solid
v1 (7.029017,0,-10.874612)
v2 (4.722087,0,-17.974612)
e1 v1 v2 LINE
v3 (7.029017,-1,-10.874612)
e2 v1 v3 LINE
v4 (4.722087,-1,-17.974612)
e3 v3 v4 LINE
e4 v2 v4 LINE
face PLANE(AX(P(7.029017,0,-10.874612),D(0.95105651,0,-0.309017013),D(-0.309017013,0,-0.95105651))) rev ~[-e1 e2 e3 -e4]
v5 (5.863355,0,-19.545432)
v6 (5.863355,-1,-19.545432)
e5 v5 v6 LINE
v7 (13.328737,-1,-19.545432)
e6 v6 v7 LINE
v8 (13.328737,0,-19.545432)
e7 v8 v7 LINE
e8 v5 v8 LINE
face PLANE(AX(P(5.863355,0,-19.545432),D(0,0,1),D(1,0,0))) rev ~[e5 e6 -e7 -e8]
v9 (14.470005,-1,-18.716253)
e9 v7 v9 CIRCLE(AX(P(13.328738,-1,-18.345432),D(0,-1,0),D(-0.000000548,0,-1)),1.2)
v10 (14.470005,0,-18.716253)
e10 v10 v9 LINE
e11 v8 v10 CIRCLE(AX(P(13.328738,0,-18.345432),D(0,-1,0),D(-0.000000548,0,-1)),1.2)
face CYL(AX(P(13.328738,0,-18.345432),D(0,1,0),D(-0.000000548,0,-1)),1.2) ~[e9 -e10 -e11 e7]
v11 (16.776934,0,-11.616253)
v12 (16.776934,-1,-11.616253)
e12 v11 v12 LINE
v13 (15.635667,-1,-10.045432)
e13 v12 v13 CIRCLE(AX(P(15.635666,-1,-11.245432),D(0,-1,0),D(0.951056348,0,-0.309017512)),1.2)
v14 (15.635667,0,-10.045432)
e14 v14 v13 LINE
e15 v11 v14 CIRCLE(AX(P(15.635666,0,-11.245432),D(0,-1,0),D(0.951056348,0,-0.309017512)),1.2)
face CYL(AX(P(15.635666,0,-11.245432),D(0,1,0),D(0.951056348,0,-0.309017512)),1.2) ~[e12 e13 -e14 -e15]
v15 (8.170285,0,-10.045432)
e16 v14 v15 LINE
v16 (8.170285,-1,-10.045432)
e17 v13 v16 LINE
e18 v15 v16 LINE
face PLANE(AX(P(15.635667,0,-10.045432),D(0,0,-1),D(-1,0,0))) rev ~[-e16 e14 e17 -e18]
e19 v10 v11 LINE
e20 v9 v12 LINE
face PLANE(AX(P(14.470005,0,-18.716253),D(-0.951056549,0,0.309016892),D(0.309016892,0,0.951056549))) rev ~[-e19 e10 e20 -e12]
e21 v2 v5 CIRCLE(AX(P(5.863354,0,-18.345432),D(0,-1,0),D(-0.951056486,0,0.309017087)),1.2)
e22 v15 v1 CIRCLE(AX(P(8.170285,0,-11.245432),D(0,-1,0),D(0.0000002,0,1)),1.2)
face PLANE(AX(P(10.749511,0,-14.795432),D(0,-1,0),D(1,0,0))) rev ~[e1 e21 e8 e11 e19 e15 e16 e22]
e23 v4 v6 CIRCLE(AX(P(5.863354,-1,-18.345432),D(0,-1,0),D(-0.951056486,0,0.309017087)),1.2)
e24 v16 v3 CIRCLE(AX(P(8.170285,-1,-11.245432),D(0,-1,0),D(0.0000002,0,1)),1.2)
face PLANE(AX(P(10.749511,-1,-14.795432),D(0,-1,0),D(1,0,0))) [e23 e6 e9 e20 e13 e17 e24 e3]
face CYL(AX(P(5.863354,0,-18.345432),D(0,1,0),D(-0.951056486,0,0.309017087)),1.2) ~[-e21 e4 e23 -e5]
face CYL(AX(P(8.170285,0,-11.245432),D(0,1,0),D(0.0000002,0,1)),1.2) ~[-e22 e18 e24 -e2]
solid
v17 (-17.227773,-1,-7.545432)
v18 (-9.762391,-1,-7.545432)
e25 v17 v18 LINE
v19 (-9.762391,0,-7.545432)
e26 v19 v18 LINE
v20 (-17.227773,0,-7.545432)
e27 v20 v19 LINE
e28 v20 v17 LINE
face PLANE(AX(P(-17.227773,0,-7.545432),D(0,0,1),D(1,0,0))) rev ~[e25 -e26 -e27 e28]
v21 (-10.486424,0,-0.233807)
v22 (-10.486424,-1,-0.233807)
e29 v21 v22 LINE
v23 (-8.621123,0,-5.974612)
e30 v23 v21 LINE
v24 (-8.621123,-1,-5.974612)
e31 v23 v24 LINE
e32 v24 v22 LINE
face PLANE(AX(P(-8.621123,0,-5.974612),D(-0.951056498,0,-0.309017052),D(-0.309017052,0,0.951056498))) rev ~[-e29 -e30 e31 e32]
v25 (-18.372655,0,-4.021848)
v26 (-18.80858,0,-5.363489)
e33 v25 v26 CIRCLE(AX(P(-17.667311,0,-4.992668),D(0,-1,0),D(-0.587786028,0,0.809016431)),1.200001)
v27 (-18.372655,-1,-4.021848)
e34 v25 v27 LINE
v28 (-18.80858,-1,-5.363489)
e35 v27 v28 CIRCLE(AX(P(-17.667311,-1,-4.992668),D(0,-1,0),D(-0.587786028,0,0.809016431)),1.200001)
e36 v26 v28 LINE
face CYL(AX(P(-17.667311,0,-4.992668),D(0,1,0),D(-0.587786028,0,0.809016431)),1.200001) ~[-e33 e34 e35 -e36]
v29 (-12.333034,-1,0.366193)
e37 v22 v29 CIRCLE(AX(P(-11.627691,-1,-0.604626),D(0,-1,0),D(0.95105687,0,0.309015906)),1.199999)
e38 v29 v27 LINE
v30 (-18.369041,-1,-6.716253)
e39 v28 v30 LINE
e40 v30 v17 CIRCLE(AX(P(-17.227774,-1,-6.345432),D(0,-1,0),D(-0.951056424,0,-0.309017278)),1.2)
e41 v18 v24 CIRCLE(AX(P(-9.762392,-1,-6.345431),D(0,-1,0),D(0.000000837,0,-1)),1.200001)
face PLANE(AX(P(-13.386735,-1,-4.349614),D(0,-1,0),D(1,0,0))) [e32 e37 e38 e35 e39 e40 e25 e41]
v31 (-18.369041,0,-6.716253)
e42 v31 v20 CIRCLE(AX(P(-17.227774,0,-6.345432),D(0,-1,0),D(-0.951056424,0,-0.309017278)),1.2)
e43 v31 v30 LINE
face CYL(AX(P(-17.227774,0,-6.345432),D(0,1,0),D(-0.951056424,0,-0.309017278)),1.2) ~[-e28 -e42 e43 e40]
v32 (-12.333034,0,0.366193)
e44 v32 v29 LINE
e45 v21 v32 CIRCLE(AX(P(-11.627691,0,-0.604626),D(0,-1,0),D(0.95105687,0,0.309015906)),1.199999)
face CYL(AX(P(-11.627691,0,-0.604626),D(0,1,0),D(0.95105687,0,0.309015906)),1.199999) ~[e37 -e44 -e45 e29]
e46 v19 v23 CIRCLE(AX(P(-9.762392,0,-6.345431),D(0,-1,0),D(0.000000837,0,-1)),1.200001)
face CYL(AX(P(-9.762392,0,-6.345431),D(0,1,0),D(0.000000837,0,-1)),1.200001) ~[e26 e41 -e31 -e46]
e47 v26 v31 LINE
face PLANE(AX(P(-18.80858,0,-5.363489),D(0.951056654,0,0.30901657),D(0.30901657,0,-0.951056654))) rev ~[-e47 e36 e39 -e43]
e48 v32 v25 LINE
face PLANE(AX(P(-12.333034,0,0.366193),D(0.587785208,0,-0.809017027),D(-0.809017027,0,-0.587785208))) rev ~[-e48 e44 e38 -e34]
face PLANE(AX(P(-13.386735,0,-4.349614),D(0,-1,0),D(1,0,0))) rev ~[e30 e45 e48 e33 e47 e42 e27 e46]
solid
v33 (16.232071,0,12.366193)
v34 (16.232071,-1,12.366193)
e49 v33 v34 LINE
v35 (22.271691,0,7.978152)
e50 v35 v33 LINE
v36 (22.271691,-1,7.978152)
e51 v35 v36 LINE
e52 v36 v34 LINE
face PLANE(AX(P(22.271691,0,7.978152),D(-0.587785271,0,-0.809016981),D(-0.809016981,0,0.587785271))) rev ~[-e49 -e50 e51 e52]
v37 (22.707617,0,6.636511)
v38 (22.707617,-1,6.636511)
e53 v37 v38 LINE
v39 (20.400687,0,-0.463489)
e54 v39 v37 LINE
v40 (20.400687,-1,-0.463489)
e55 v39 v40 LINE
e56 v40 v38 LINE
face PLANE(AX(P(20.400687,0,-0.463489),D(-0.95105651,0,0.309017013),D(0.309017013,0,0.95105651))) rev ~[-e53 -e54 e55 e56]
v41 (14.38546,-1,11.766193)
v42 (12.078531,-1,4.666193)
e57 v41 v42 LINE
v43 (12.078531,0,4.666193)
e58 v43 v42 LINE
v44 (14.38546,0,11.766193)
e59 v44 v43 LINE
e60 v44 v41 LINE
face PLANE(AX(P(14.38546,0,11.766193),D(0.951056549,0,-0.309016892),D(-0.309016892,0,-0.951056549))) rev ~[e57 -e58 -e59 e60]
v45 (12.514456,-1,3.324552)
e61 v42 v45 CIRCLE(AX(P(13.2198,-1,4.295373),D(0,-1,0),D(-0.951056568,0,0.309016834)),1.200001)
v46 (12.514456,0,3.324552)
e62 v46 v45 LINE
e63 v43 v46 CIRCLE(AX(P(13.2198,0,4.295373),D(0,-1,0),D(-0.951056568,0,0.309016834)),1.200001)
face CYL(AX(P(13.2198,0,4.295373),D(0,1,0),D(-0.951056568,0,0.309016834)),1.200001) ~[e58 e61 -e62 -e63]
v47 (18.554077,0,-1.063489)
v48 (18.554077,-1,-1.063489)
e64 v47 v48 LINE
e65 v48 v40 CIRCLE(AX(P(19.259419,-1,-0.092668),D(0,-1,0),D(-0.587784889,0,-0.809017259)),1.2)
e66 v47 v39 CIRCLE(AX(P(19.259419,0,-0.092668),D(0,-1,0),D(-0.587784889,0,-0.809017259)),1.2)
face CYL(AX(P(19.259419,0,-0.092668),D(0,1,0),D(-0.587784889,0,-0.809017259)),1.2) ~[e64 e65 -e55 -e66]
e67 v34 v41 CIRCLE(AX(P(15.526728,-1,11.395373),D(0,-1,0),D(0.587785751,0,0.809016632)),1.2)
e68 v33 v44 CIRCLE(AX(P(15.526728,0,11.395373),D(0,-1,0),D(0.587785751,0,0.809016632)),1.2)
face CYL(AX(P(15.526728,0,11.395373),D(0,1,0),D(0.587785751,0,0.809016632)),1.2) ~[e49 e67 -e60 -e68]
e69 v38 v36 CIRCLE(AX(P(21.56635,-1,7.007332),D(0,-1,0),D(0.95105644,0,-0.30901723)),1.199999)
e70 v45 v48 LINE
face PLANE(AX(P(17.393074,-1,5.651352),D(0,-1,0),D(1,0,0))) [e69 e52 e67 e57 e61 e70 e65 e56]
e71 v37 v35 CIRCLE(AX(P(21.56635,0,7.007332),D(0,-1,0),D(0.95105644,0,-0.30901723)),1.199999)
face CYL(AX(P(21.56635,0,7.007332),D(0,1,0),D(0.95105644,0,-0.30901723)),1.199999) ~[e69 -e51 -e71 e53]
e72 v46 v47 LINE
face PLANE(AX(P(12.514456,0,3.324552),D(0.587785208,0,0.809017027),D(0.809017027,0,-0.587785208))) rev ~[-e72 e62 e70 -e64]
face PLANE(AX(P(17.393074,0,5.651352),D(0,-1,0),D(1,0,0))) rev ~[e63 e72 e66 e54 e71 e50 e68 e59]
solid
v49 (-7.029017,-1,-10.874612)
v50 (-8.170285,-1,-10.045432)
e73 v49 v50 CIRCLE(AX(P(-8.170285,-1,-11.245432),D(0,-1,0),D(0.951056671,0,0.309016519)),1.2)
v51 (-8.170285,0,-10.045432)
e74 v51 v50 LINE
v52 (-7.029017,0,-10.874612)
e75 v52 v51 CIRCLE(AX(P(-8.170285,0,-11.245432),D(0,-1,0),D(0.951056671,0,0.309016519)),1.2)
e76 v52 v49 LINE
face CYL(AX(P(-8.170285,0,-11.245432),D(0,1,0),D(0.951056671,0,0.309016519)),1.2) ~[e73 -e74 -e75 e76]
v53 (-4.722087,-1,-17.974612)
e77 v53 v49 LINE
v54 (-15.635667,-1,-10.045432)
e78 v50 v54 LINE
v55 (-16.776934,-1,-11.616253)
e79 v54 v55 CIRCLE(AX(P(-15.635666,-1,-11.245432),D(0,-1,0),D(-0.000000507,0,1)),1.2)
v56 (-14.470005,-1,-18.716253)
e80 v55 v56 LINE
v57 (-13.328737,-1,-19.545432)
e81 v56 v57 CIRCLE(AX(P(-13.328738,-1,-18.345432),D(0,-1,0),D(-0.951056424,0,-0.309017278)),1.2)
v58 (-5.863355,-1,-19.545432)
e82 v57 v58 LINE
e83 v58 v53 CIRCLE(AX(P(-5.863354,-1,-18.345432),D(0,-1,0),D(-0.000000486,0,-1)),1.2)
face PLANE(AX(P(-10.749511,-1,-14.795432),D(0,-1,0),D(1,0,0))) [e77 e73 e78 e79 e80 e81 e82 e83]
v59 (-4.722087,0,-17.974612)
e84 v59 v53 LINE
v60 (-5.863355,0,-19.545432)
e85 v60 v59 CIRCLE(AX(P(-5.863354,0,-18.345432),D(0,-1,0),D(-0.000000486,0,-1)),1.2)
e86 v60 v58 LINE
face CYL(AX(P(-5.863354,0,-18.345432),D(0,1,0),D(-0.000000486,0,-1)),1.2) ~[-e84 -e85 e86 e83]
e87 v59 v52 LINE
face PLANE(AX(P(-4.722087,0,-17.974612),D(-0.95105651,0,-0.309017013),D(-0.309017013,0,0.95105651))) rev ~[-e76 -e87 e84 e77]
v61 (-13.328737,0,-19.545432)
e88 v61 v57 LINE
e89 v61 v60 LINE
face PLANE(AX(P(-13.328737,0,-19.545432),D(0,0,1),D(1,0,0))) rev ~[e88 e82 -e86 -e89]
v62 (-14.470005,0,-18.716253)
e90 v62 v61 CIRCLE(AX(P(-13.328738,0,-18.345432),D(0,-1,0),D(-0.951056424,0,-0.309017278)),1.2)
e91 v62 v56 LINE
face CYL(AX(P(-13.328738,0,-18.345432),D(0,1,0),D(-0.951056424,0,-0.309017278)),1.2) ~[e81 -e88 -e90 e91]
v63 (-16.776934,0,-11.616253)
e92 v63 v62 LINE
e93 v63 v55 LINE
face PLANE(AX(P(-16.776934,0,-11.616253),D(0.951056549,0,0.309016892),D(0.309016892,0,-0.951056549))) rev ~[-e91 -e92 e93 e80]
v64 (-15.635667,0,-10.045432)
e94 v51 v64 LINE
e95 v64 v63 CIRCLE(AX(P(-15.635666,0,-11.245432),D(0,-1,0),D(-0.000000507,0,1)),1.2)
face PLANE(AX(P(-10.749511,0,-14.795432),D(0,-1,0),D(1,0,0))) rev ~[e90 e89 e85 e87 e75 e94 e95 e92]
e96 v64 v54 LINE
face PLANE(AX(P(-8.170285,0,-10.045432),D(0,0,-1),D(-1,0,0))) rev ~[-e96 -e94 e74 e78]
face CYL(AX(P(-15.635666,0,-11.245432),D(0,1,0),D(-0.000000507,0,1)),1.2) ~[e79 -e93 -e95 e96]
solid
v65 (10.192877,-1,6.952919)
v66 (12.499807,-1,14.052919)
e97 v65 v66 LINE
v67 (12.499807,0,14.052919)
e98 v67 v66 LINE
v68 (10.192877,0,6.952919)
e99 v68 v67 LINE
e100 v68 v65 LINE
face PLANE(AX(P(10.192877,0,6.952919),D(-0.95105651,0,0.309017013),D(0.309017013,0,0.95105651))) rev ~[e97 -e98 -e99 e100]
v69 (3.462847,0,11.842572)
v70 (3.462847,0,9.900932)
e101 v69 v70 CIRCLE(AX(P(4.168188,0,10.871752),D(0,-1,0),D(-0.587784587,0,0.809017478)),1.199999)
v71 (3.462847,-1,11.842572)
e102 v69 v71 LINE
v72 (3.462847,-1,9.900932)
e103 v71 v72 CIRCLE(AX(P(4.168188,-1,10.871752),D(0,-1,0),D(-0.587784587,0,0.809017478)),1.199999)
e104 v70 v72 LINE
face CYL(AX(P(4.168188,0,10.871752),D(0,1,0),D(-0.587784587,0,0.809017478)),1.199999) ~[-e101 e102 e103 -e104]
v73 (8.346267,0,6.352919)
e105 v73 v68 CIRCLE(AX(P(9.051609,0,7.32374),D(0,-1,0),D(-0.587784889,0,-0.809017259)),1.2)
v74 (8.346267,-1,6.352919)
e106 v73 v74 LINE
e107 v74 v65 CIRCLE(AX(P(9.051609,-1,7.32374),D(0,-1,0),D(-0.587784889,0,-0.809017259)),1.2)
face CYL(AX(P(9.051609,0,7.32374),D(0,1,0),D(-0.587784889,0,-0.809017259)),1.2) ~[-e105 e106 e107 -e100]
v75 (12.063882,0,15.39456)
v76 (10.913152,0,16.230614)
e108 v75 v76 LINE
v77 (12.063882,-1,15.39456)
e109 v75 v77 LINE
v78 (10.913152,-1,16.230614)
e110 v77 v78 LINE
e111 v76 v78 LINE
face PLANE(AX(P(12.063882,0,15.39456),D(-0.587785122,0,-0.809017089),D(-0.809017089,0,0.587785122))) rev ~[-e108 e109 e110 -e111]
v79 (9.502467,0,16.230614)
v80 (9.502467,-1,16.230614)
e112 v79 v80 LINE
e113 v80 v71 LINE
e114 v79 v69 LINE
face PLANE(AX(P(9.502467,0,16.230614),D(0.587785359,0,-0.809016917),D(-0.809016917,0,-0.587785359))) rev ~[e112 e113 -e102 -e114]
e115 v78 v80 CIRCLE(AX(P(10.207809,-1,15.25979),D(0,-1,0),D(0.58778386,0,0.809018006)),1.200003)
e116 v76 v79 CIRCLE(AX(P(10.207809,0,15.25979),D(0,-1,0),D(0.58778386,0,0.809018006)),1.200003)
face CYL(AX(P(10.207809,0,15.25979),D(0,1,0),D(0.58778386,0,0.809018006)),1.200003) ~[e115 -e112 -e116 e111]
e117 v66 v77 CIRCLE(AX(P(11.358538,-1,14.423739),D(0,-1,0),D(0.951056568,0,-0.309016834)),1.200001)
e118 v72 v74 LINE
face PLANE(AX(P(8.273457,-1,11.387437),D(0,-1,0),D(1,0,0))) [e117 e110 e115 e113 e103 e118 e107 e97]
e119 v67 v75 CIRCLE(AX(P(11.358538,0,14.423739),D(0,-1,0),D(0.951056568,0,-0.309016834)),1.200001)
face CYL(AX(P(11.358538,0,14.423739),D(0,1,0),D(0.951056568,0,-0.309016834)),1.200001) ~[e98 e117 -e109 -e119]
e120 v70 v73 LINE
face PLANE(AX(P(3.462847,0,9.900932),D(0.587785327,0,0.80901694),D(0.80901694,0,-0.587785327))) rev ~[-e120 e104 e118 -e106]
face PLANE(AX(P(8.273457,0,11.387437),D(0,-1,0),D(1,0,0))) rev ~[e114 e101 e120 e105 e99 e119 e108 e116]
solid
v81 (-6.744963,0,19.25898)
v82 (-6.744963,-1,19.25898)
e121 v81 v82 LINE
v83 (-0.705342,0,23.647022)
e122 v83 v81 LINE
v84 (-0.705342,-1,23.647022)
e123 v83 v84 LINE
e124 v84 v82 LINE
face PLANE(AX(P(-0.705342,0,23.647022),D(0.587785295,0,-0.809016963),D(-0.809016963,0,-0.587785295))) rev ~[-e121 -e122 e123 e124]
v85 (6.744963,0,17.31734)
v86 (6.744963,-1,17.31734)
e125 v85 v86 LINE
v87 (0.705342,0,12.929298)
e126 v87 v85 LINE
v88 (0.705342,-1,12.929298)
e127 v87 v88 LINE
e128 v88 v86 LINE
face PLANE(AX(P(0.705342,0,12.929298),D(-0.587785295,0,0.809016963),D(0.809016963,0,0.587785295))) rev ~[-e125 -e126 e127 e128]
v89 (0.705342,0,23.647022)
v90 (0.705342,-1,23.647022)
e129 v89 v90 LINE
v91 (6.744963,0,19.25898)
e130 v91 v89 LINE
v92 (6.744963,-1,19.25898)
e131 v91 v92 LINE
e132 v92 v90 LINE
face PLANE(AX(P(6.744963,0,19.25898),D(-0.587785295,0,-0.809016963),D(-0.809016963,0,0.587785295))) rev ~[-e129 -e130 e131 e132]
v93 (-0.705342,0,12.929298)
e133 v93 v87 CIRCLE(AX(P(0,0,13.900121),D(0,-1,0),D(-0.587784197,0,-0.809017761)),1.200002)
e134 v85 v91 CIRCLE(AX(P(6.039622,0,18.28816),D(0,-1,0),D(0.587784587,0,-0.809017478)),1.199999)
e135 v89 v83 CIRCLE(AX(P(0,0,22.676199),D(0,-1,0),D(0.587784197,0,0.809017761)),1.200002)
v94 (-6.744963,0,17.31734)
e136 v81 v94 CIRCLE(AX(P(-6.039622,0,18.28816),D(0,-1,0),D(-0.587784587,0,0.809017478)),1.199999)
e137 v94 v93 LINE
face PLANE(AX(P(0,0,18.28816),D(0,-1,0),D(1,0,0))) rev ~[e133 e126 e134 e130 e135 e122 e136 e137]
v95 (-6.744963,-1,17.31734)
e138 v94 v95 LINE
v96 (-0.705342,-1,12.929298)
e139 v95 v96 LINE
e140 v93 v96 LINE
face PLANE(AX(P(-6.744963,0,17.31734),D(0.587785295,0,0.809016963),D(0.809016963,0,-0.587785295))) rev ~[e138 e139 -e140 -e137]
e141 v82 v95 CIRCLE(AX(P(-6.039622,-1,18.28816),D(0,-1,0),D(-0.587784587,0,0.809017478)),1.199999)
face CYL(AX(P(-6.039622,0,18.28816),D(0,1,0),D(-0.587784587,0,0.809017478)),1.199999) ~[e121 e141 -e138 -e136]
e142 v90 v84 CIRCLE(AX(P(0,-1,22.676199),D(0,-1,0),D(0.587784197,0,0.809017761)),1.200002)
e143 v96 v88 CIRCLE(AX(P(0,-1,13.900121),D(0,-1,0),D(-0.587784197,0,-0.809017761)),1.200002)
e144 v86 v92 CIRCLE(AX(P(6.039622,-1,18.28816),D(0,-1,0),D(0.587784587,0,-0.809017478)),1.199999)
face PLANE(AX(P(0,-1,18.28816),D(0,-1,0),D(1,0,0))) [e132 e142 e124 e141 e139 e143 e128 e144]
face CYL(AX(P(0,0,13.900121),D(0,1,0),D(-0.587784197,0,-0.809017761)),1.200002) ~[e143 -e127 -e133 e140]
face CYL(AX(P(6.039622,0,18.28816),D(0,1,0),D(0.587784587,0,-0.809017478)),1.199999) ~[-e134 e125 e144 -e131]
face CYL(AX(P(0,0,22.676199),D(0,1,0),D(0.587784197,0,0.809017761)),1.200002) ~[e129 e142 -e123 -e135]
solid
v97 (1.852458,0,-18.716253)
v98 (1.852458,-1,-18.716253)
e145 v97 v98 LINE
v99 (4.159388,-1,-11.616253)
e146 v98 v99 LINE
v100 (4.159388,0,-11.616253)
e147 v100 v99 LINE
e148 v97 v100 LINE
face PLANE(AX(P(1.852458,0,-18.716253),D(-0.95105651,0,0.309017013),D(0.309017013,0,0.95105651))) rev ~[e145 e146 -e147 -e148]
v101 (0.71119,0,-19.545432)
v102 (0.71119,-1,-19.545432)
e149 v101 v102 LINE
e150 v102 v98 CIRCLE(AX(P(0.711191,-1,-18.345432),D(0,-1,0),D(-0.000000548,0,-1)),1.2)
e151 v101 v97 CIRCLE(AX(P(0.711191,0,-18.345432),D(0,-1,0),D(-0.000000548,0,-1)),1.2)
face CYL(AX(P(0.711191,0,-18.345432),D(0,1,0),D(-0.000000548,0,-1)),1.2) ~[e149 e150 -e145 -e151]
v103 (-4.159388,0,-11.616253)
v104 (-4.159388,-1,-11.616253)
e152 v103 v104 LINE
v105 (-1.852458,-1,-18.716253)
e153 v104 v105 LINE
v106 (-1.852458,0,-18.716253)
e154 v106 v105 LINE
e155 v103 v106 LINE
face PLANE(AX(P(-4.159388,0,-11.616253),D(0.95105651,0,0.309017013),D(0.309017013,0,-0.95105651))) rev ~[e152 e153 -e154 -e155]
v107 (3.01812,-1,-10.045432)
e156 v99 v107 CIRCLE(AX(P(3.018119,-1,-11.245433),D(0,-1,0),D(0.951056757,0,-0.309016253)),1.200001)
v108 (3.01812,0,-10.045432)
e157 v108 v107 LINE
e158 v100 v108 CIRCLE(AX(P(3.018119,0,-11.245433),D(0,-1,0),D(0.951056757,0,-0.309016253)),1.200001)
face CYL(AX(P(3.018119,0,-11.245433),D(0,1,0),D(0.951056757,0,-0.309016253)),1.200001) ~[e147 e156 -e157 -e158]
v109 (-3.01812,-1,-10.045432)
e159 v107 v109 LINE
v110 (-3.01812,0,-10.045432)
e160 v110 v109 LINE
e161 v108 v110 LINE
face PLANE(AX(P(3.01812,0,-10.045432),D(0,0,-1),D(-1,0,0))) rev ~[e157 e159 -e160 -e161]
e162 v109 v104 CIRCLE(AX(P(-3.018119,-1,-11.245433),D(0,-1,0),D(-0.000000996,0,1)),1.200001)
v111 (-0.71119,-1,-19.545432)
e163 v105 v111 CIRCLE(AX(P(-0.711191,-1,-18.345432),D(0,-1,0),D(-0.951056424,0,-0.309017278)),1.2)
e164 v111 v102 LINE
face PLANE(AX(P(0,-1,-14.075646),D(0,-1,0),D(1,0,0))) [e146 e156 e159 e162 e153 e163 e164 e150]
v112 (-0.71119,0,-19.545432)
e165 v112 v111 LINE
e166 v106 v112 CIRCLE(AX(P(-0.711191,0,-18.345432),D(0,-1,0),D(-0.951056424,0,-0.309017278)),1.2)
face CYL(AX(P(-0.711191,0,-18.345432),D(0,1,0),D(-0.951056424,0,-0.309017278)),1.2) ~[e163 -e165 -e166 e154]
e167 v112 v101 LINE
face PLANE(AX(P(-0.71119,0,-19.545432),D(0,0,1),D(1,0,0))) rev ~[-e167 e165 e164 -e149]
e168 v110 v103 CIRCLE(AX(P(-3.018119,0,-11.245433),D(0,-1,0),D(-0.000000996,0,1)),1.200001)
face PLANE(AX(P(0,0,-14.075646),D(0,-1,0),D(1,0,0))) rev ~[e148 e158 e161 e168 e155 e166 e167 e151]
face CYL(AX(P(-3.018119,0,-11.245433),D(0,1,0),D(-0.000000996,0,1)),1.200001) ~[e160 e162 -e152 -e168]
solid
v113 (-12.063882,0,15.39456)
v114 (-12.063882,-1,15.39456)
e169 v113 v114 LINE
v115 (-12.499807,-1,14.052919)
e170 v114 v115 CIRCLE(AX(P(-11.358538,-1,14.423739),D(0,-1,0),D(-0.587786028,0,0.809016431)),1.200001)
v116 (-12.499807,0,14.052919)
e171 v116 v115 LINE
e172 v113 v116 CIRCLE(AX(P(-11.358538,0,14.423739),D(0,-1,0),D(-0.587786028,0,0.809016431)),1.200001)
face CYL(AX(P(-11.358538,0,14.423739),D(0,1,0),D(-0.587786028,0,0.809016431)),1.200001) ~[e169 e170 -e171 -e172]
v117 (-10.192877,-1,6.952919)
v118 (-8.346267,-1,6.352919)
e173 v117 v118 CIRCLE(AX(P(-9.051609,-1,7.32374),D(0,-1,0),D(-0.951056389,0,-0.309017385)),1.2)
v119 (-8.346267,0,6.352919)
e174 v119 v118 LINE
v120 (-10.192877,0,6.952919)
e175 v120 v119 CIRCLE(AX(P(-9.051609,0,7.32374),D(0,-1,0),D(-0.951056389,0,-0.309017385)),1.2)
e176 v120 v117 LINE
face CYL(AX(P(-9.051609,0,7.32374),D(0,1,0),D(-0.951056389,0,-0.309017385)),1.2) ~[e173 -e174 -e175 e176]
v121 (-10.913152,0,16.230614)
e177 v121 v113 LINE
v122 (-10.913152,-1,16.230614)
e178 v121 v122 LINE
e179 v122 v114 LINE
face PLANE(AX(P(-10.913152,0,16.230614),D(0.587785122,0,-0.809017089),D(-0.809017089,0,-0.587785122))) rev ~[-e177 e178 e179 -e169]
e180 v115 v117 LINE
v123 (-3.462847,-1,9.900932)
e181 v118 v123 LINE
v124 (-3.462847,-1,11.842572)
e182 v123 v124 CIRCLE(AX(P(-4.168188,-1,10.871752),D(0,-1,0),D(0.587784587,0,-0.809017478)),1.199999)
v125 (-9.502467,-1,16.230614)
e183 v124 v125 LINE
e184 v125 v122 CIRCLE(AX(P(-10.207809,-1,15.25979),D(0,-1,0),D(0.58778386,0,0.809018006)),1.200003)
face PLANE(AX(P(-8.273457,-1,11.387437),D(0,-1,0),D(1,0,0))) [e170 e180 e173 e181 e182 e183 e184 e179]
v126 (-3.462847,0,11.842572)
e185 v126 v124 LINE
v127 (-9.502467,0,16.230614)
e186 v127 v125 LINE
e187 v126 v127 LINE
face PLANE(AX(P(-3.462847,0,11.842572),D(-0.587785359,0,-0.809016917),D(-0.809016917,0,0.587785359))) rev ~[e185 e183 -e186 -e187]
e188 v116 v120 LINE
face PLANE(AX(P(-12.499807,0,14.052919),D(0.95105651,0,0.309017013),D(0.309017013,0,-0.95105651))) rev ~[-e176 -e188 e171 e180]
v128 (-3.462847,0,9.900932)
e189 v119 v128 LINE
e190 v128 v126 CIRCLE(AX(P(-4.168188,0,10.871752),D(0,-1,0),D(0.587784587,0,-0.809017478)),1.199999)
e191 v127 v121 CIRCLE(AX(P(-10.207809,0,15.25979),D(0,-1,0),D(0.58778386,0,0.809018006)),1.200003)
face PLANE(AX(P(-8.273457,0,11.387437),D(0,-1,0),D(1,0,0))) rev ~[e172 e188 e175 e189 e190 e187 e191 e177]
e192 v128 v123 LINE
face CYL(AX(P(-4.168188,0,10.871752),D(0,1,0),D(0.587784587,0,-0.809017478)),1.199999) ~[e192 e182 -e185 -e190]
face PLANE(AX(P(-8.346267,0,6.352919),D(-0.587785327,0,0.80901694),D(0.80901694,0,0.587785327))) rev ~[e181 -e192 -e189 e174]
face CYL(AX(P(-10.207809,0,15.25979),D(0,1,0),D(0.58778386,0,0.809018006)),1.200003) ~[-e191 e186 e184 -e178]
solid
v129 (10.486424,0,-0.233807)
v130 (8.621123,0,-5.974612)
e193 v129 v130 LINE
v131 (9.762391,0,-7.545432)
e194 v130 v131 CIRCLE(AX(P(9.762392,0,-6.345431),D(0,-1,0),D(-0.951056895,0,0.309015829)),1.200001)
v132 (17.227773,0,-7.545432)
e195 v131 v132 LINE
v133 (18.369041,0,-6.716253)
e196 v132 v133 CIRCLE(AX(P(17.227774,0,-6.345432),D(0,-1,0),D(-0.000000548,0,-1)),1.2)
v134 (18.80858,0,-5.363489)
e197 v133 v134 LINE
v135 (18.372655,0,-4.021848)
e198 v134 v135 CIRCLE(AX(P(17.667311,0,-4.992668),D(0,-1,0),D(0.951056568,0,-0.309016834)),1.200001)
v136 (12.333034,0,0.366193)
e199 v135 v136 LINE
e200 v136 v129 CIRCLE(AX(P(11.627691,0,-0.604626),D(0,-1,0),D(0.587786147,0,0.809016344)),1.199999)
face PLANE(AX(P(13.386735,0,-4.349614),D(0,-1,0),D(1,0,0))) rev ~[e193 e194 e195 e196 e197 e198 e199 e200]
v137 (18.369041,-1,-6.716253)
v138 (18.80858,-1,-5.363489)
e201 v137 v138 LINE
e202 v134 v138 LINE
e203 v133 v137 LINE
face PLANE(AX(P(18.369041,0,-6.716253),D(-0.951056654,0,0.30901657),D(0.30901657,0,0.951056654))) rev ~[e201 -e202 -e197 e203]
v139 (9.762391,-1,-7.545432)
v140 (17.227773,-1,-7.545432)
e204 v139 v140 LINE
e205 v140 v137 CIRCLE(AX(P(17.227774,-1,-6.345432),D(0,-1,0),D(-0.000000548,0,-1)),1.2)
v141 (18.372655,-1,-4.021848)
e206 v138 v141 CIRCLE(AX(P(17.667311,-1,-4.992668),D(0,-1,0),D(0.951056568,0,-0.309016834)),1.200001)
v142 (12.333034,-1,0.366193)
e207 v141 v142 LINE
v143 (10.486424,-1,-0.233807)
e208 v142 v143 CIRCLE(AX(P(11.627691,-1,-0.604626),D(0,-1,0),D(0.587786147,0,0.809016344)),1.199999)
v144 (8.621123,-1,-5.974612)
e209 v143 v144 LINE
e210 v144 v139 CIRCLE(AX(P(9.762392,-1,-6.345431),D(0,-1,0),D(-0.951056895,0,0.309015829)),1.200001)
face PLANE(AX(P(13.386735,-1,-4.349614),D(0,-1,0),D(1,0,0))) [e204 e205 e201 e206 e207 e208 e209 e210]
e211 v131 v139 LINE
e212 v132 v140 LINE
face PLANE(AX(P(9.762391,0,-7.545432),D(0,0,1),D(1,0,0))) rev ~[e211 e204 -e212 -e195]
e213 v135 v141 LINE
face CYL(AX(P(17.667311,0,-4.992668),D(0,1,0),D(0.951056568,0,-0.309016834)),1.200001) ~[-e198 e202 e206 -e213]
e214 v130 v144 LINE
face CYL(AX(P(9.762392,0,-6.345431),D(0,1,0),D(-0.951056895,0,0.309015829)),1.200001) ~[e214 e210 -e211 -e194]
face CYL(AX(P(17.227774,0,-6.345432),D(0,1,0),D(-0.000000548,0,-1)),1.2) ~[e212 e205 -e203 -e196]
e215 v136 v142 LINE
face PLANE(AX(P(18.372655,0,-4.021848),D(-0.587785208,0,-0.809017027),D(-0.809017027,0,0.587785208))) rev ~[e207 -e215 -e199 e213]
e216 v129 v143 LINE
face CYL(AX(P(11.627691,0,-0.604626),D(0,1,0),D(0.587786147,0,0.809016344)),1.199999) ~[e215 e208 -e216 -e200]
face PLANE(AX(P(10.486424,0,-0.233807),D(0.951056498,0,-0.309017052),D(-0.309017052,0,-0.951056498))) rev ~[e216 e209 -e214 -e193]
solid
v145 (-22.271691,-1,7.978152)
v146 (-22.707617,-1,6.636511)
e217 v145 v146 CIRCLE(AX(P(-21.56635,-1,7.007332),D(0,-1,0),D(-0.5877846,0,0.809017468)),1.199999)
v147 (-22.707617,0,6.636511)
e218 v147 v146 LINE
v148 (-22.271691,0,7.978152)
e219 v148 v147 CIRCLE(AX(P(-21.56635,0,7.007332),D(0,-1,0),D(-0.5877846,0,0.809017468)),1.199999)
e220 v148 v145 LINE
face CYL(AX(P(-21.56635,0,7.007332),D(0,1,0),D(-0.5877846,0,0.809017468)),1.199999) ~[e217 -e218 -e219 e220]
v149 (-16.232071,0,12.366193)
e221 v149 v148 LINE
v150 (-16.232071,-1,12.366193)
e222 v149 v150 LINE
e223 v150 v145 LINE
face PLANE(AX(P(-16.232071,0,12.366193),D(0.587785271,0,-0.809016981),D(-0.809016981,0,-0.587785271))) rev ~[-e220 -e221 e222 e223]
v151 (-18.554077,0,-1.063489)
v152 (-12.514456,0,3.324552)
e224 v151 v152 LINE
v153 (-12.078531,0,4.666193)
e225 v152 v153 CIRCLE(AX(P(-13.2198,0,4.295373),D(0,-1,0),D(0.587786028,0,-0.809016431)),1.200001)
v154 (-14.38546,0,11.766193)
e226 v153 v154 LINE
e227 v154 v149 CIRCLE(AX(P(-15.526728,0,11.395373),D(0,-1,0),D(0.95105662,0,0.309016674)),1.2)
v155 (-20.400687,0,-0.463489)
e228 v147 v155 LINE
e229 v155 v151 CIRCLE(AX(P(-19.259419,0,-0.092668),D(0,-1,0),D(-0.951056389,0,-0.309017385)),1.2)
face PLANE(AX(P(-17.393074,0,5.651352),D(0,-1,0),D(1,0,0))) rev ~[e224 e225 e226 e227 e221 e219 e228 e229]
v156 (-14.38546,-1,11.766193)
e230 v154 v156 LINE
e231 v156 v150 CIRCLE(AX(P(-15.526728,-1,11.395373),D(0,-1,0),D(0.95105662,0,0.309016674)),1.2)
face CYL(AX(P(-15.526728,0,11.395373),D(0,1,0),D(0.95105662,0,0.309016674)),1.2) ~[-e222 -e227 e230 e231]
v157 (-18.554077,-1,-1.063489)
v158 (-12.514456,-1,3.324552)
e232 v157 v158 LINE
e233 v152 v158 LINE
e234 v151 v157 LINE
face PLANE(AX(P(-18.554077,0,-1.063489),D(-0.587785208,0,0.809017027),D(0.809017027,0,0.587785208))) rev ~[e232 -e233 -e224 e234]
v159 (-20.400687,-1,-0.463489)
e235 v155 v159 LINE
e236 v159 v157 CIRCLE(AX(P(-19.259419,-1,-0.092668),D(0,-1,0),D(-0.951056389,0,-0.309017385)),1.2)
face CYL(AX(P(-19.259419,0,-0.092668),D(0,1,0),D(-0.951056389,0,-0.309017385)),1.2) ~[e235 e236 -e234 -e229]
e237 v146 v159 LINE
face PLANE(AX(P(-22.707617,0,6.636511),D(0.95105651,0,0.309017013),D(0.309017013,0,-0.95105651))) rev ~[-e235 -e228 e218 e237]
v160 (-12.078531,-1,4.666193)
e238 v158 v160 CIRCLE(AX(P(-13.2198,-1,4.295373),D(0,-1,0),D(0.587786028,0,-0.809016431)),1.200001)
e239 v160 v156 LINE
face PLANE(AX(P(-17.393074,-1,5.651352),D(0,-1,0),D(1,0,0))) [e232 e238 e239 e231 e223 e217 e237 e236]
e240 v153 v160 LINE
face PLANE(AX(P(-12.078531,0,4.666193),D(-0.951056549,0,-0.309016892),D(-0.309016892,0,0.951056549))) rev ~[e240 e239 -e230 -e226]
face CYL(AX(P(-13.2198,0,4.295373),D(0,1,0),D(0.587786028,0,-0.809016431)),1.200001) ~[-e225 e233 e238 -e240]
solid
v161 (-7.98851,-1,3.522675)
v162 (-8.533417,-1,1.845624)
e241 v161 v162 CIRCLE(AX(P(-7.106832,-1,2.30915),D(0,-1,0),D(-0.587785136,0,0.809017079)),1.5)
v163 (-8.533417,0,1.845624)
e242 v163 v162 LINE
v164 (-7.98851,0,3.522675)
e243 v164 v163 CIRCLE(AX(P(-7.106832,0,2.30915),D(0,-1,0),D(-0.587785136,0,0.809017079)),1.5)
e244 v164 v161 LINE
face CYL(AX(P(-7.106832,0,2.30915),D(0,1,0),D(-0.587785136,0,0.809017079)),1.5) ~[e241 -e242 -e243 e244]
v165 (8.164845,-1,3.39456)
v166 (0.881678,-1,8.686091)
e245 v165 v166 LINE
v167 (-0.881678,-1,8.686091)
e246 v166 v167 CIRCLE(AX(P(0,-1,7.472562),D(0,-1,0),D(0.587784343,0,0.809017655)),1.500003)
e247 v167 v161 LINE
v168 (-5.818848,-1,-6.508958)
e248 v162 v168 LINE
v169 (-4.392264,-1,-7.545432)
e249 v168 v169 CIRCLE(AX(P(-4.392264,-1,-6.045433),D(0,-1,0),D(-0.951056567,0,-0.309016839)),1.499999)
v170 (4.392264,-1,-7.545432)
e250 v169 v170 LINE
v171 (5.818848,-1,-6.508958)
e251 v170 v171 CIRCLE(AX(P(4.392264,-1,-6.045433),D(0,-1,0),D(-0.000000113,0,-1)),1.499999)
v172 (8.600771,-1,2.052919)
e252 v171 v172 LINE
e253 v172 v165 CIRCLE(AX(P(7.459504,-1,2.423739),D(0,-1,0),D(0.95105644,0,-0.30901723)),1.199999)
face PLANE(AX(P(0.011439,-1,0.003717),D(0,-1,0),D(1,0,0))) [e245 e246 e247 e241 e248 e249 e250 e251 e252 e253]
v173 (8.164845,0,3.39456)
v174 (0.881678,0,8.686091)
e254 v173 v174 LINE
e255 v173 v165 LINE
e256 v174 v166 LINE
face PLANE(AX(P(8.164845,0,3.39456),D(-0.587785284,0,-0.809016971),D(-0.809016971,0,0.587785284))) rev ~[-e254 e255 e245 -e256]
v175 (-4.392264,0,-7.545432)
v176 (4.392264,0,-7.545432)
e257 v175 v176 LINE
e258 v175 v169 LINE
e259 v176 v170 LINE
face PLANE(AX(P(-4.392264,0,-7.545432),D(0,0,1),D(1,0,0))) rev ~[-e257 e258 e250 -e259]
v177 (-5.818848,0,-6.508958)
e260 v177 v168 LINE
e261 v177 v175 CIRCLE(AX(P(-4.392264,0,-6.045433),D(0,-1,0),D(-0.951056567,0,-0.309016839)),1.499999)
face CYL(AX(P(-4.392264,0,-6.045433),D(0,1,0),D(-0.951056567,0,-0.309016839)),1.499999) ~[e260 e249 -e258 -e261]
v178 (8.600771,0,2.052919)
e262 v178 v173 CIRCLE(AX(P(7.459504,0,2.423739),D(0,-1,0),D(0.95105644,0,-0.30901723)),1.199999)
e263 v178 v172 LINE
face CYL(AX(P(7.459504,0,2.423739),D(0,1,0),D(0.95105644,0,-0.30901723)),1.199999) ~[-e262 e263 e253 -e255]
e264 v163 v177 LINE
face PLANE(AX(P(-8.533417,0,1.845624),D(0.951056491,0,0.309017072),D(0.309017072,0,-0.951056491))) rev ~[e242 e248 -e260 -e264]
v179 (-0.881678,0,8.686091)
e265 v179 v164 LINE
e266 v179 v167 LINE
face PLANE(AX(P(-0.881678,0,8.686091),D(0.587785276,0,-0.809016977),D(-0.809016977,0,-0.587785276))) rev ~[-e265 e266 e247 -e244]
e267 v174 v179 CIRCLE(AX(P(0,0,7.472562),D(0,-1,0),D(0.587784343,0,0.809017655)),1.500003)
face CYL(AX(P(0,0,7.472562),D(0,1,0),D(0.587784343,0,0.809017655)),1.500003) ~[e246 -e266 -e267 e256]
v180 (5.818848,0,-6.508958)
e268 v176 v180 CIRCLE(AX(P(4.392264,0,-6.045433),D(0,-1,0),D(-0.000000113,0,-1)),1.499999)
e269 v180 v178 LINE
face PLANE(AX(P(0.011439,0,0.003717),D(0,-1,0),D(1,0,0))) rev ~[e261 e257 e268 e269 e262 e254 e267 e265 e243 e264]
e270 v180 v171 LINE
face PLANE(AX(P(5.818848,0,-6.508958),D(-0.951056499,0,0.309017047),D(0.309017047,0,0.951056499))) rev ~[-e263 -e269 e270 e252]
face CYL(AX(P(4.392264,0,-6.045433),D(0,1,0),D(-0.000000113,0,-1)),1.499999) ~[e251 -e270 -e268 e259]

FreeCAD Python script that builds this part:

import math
import FreeCAD as App
import Part
import Sketcher

doc = App.newDocument("Part")
body = doc.addObject("PartDesign::Body", "Body")
body.AllowCompound = True

# Sketch on XZ plane
sketch1 = body.newObject("Sketcher::SketchObject", "Sketch")
sketch1.AttachmentSupport = (doc.getObject("XZ_Plane"), [""])
sketch1.MapMode = "FlatFace"
sketch1.addGeometry([
    Part.ArcOfCircle(Part.Circle(App.Vector(-13.2, 4.3, 0), App.Vector(0, 0, 1), 1.2), math.radians(-54), math.radians(18)),  # 0
    Part.LineSegment(App.Vector(-12.1, 4.7, 0), App.Vector(-14.4, 11.8, 0)),  # 1
    Part.ArcOfCircle(Part.Circle(App.Vector(-15.5, 11.4, 0), App.Vector(0, 0, 1), 1.2), math.radians(18), math.radians(126)),  # 2
    Part.LineSegment(App.Vector(-16.2, 12.4, 0), App.Vector(-22.3, 8, 0)),  # 3
    Part.ArcOfCircle(Part.Circle(App.Vector(-21.6, 7, 0), App.Vector(0, 0, 1), 1.2), math.radians(126), math.radians(198)),  # 4
    Part.LineSegment(App.Vector(-22.7, 6.6, 0), App.Vector(-20.4, -0.5, 0)),  # 5
    Part.ArcOfCircle(Part.Circle(App.Vector(-19.3, -0.1, 0), App.Vector(0, 0, 1), 1.2), math.radians(-162), math.radians(-54)),  # 6
    Part.LineSegment(App.Vector(-18.6, -1.1, 0), App.Vector(-12.5, 3.3, 0)),  # 7
    Part.LineSegment(App.Vector(-8.3, 6.4, 0), App.Vector(-3.5, 9.9, 0)),  # 8
    Part.ArcOfCircle(Part.Circle(App.Vector(-4.2, 10.9, 0), App.Vector(0, 0, 1), 1.2), math.radians(-54), math.radians(54)),  # 9
    Part.LineSegment(App.Vector(-3.5, 11.8, 0), App.Vector(-9.5, 16.2, 0)),  # 10
    Part.ArcOfCircle(Part.Circle(App.Vector(-10.2, 15.3, 0), App.Vector(0, 0, 1), 1.2), math.radians(54), math.radians(126)),  # 11
    Part.LineSegment(App.Vector(-10.9, 16.2, 0), App.Vector(-12.1, 15.4, 0)),  # 12
    Part.ArcOfCircle(Part.Circle(App.Vector(-11.4, 14.4, 0), App.Vector(0, 0, 1), 1.2), math.radians(126), math.radians(198)),  # 13
    Part.LineSegment(App.Vector(-12.5, 14.1, 0), App.Vector(-10.2, 7, 0)),  # 14
    Part.ArcOfCircle(Part.Circle(App.Vector(-9.1, 7.3, 0), App.Vector(0, 0, 1), 1.2), math.radians(-162), math.radians(-54)),  # 15
    Part.ArcOfCircle(Part.Circle(App.Vector(0, 13.9, 0), App.Vector(0, 0, 1), 1.2), math.radians(-126), math.radians(-54)),  # 16
    Part.LineSegment(App.Vector(0.7, 12.9, 0), App.Vector(6.7, 17.3, 0)),  # 17
    Part.ArcOfCircle(Part.Circle(App.Vector(6, 18.3, 0), App.Vector(0, 0, 1), 1.2), math.radians(-54), math.radians(54)),  # 18
    Part.LineSegment(App.Vector(6.7, 19.3, 0), App.Vector(0.7, 23.6, 0)),  # 19
    Part.ArcOfCircle(Part.Circle(App.Vector(0, 22.7, 0), App.Vector(0, 0, 1), 1.2), math.radians(54), math.radians(126)),  # 20
    Part.LineSegment(App.Vector(-0.7, 23.6, 0), App.Vector(-6.7, 19.3, 0)),  # 21
    Part.ArcOfCircle(Part.Circle(App.Vector(-6, 18.3, 0), App.Vector(0, 0, 1), 1.2), math.radians(126), math.radians(234)),  # 22
    Part.LineSegment(App.Vector(-6.7, 17.3, 0), App.Vector(-0.7, 12.9, 0)),  # 23
    Part.LineSegment(App.Vector(3.5, 9.9, 0), App.Vector(8.3, 6.4, 0)),  # 24
    Part.ArcOfCircle(Part.Circle(App.Vector(9.1, 7.3, 0), App.Vector(0, 0, 1), 1.2), math.radians(-126), math.radians(-18)),  # 25
    Part.LineSegment(App.Vector(10.2, 7, 0), App.Vector(12.5, 14.1, 0)),  # 26
    Part.ArcOfCircle(Part.Circle(App.Vector(11.4, 14.4, 0), App.Vector(0, 0, 1), 1.2), math.radians(-18), math.radians(54)),  # 27
    Part.LineSegment(App.Vector(12.1, 15.4, 0), App.Vector(10.9, 16.2, 0)),  # 28
    Part.ArcOfCircle(Part.Circle(App.Vector(10.2, 15.3, 0), App.Vector(0, 0, 1), 1.2), math.radians(54), math.radians(126)),  # 29
    Part.LineSegment(App.Vector(9.5, 16.2, 0), App.Vector(3.5, 11.8, 0)),  # 30
    Part.ArcOfCircle(Part.Circle(App.Vector(4.2, 10.9, 0), App.Vector(0, 0, 1), 1.2), math.radians(126), math.radians(234)),  # 31
    Part.LineSegment(App.Vector(-4.4, -7.5, 0), App.Vector(4.4, -7.5, 0)),  # 32
    Part.ArcOfCircle(Part.Circle(App.Vector(4.4, -6, 0), App.Vector(0, 0, 1), 1.5), math.radians(-90), math.radians(-18)),  # 33
    Part.LineSegment(App.Vector(5.8, -6.5, 0), App.Vector(8.6, 2.1, 0)),  # 34
    Part.ArcOfCircle(Part.Circle(App.Vector(7.5, 2.4, 0), App.Vector(0, 0, 1), 1.2), math.radians(-18), math.radians(54)),  # 35
    Part.LineSegment(App.Vector(8.2, 3.4, 0), App.Vector(0.9, 8.7, 0)),  # 36
    Part.ArcOfCircle(Part.Circle(App.Vector(0, 7.5, 0), App.Vector(0, 0, 1), 1.5), math.radians(54), math.radians(126)),  # 37
    Part.LineSegment(App.Vector(-0.9, 8.7, 0), App.Vector(-8, 3.5, 0)),  # 38
    Part.ArcOfCircle(Part.Circle(App.Vector(-7.1, 2.3, 0), App.Vector(0, 0, 1), 1.5), math.radians(126), math.radians(198)),  # 39
    Part.LineSegment(App.Vector(-8.5, 1.8, 0), App.Vector(-5.8, -6.5, 0)),  # 40
    Part.ArcOfCircle(Part.Circle(App.Vector(-4.4, -6, 0), App.Vector(0, 0, 1), 1.5), math.radians(-162), math.radians(-90)),  # 41
    Part.LineSegment(App.Vector(-8.6, -6, 0), App.Vector(-10.5, -0.2, 0)),  # 42
    Part.ArcOfCircle(Part.Circle(App.Vector(-11.6, -0.6, 0), App.Vector(0, 0, 1), 1.2), math.radians(18), math.radians(126)),  # 43
    Part.LineSegment(App.Vector(-12.3, 0.4, 0), App.Vector(-18.4, -4, 0)),  # 44
    Part.ArcOfCircle(Part.Circle(App.Vector(-17.7, -5, 0), App.Vector(0, 0, 1), 1.2), math.radians(126), math.radians(198)),  # 45
    Part.LineSegment(App.Vector(-18.8, -5.4, 0), App.Vector(-18.4, -6.7, 0)),  # 46
    Part.ArcOfCircle(Part.Circle(App.Vector(-17.2, -6.3, 0), App.Vector(0, 0, 1), 1.2), math.radians(-162), math.radians(-90)),  # 47
    Part.LineSegment(App.Vector(-17.2, -7.5, 0), App.Vector(-9.8, -7.5, 0)),  # 48
    Part.ArcOfCircle(Part.Circle(App.Vector(-9.8, -6.3, 0), App.Vector(0, 0, 1), 1.2), math.radians(-90), math.radians(18)),  # 49
    Part.ArcOfCircle(Part.Circle(App.Vector(-13.3, -18.3, 0), App.Vector(0, 0, 1), 1.2), math.radians(-162), math.radians(-90)),  # 50
    Part.LineSegment(App.Vector(-13.3, -19.5, 0), App.Vector(-5.9, -19.5, 0)),  # 51
    Part.ArcOfCircle(Part.Circle(App.Vector(-5.9, -18.3, 0), App.Vector(0, 0, 1), 1.2), math.radians(-90), math.radians(18)),  # 52
    Part.LineSegment(App.Vector(-4.7, -18, 0), App.Vector(-7, -10.9, 0)),  # 53
    Part.ArcOfCircle(Part.Circle(App.Vector(-8.2, -11.2, 0), App.Vector(0, 0, 1), 1.2), math.radians(18), math.radians(90)),  # 54
    Part.LineSegment(App.Vector(-8.2, -10, 0), App.Vector(-15.6, -10, 0)),  # 55
    Part.ArcOfCircle(Part.Circle(App.Vector(-15.6, -11.2, 0), App.Vector(0, 0, 1), 1.2), math.radians(90), math.radians(198)),  # 56
    Part.LineSegment(App.Vector(-16.8, -11.6, 0), App.Vector(-14.5, -18.7, 0)),  # 57
    Part.LineSegment(App.Vector(3, -10, 0), App.Vector(-3, -10, 0)),  # 58
    Part.ArcOfCircle(Part.Circle(App.Vector(-3, -11.2, 0), App.Vector(0, 0, 1), 1.2), math.radians(90), math.radians(198)),  # 59
    Part.LineSegment(App.Vector(-4.2, -11.6, 0), App.Vector(-1.9, -18.7, 0)),  # 60
    Part.ArcOfCircle(Part.Circle(App.Vector(-0.7, -18.3, 0), App.Vector(0, 0, 1), 1.2), math.radians(-162), math.radians(-90)),  # 61
    Part.LineSegment(App.Vector(-0.7, -19.5, 0), App.Vector(0.7, -19.5, 0)),  # 62
    Part.ArcOfCircle(Part.Circle(App.Vector(0.7, -18.3, 0), App.Vector(0, 0, 1), 1.2), math.radians(-90), math.radians(-18)),  # 63
    Part.LineSegment(App.Vector(1.9, -18.7, 0), App.Vector(4.2, -11.6, 0)),  # 64
    Part.ArcOfCircle(Part.Circle(App.Vector(3, -11.2, 0), App.Vector(0, 0, 1), 1.2), math.radians(-18), math.radians(90)),  # 65
    Part.ArcOfCircle(Part.Circle(App.Vector(8.2, -11.2, 0), App.Vector(0, 0, 1), 1.2), math.radians(90), math.radians(162)),  # 66
    Part.LineSegment(App.Vector(7, -10.9, 0), App.Vector(4.7, -18, 0)),  # 67
    Part.ArcOfCircle(Part.Circle(App.Vector(5.9, -18.3, 0), App.Vector(0, 0, 1), 1.2), math.radians(162), math.radians(270)),  # 68
    Part.LineSegment(App.Vector(5.9, -19.5, 0), App.Vector(13.3, -19.5, 0)),  # 69
    Part.ArcOfCircle(Part.Circle(App.Vector(13.3, -18.3, 0), App.Vector(0, 0, 1), 1.2), math.radians(-90), math.radians(-18)),  # 70
    Part.LineSegment(App.Vector(14.5, -18.7, 0), App.Vector(16.8, -11.6, 0)),  # 71
    Part.ArcOfCircle(Part.Circle(App.Vector(15.6, -11.2, 0), App.Vector(0, 0, 1), 1.2), math.radians(-18), math.radians(90)),  # 72
    Part.LineSegment(App.Vector(15.6, -10, 0), App.Vector(8.2, -10, 0)),  # 73
    Part.LineSegment(App.Vector(10.5, -0.2, 0), App.Vector(8.6, -6, 0)),  # 74
    Part.ArcOfCircle(Part.Circle(App.Vector(9.8, -6.3, 0), App.Vector(0, 0, 1), 1.2), math.radians(162), math.radians(270)),  # 75
    Part.LineSegment(App.Vector(9.8, -7.5, 0), App.Vector(17.2, -7.5, 0)),  # 76
    Part.ArcOfCircle(Part.Circle(App.Vector(17.2, -6.3, 0), App.Vector(0, 0, 1), 1.2), math.radians(-90), math.radians(-18)),  # 77
    Part.LineSegment(App.Vector(18.4, -6.7, 0), App.Vector(18.8, -5.4, 0)),  # 78
    Part.ArcOfCircle(Part.Circle(App.Vector(17.7, -5, 0), App.Vector(0, 0, 1), 1.2), math.radians(-18), math.radians(54)),  # 79
    Part.LineSegment(App.Vector(18.4, -4, 0), App.Vector(12.3, 0.4, 0)),  # 80
    Part.ArcOfCircle(Part.Circle(App.Vector(11.6, -0.6, 0), App.Vector(0, 0, 1), 1.2), math.radians(54), math.radians(162)),  # 81
    Part.ArcOfCircle(Part.Circle(App.Vector(13.2, 4.3, 0), App.Vector(0, 0, 1), 1.2), math.radians(162), math.radians(234)),  # 82
    Part.LineSegment(App.Vector(12.5, 3.3, 0), App.Vector(18.6, -1.1, 0)),  # 83
    Part.ArcOfCircle(Part.Circle(App.Vector(19.3, -0.1, 0), App.Vector(0, 0, 1), 1.2), math.radians(-126), math.radians(-18)),  # 84
    Part.LineSegment(App.Vector(20.4, -0.5, 0), App.Vector(22.7, 6.6, 0)),  # 85
    Part.ArcOfCircle(Part.Circle(App.Vector(21.6, 7, 0), App.Vector(0, 0, 1), 1.2), math.radians(-18), math.radians(54)),  # 86
    Part.LineSegment(App.Vector(22.3, 8, 0), App.Vector(16.2, 12.4, 0)),  # 87
    Part.ArcOfCircle(Part.Circle(App.Vector(15.5, 11.4, 0), App.Vector(0, 0, 1), 1.2), math.radians(54), math.radians(162)),  # 88
    Part.LineSegment(App.Vector(14.4, 11.8, 0), App.Vector(12.1, 4.7, 0)),  # 89
], False)
sketch1.addConstraint([
    Sketcher.Constraint("Tangent", 0, 2, 1, 1),
    Sketcher.Constraint("Tangent", 1, 2, 2, 1),
    Sketcher.Constraint("Tangent", 2, 2, 3, 1),
    Sketcher.Constraint("Tangent", 3, 2, 4, 1),
    Sketcher.Constraint("Tangent", 4, 2, 5, 1),
    Sketcher.Constraint("Tangent", 5, 2, 6, 1),
    Sketcher.Constraint("Tangent", 6, 2, 7, 1),
    Sketcher.Constraint("Tangent", 7, 2, 0, 1),
    Sketcher.Constraint("Tangent", 8, 2, 9, 1),
    Sketcher.Constraint("Tangent", 9, 2, 10, 1),
    Sketcher.Constraint("Tangent", 10, 2, 11, 1),
    Sketcher.Constraint("Tangent", 11, 2, 12, 1),
    Sketcher.Constraint("Tangent", 12, 2, 13, 1),
    Sketcher.Constraint("Tangent", 13, 2, 14, 1),
    Sketcher.Constraint("Tangent", 14, 2, 15, 1),
    Sketcher.Constraint("Tangent", 15, 2, 8, 1),
    Sketcher.Constraint("Tangent", 16, 2, 17, 1),
    Sketcher.Constraint("Tangent", 17, 2, 18, 1),
    Sketcher.Constraint("Tangent", 18, 2, 19, 1),
    Sketcher.Constraint("Tangent", 19, 2, 20, 1),
    Sketcher.Constraint("Tangent", 20, 2, 21, 1),
    Sketcher.Constraint("Tangent", 21, 2, 22, 1),
    Sketcher.Constraint("Tangent", 22, 2, 23, 1),
    Sketcher.Constraint("Tangent", 23, 2, 16, 1),
    Sketcher.Constraint("Tangent", 24, 2, 25, 1),
    Sketcher.Constraint("Tangent", 25, 2, 26, 1),
    Sketcher.Constraint("Tangent", 26, 2, 27, 1),
    Sketcher.Constraint("Tangent", 27, 2, 28, 1),
    Sketcher.Constraint("Tangent", 28, 2, 29, 1),
    Sketcher.Constraint("Tangent", 29, 2, 30, 1),
    Sketcher.Constraint("Tangent", 30, 2, 31, 1),
    Sketcher.Constraint("Tangent", 31, 2, 24, 1),
    Sketcher.Constraint("Tangent", 32, 2, 33, 1),
    Sketcher.Constraint("Tangent", 33, 2, 34, 1),
    Sketcher.Constraint("Tangent", 34, 2, 35, 1),
    Sketcher.Constraint("Tangent", 35, 2, 36, 1),
    Sketcher.Constraint("Tangent", 36, 2, 37, 1),
    Sketcher.Constraint("Tangent", 37, 2, 38, 1),
    Sketcher.Constraint("Tangent", 38, 2, 39, 1),
    Sketcher.Constraint("Tangent", 39, 2, 40, 1),
    Sketcher.Constraint("Tangent", 40, 2, 41, 1),
    Sketcher.Constraint("Tangent", 41, 2, 32, 1),
    Sketcher.Constraint("Tangent", 42, 2, 43, 1),
    Sketcher.Constraint("Tangent", 43, 2, 44, 1),
    Sketcher.Constraint("Tangent", 44, 2, 45, 1),
    Sketcher.Constraint("Tangent", 45, 2, 46, 1),
    Sketcher.Constraint("Tangent", 46, 2, 47, 1),
    Sketcher.Constraint("Tangent", 47, 2, 48, 1),
    Sketcher.Constraint("Tangent", 48, 2, 49, 1),
    Sketcher.Constraint("Tangent", 49, 2, 42, 1),
    Sketcher.Constraint("Tangent", 50, 2, 51, 1),
    Sketcher.Constraint("Tangent", 51, 2, 52, 1),
    Sketcher.Constraint("Tangent", 52, 2, 53, 1),
    Sketcher.Constraint("Tangent", 53, 2, 54, 1),
    Sketcher.Constraint("Tangent", 54, 2, 55, 1),
    Sketcher.Constraint("Tangent", 55, 2, 56, 1),
    Sketcher.Constraint("Tangent", 56, 2, 57, 1),
    Sketcher.Constraint("Tangent", 57, 2, 50, 1),
    Sketcher.Constraint("Tangent", 58, 2, 59, 1),
    Sketcher.Constraint("Tangent", 59, 2, 60, 1),
    Sketcher.Constraint("Tangent", 60, 2, 61, 1),
    Sketcher.Constraint("Tangent", 61, 2, 62, 1),
    Sketcher.Constraint("Tangent", 62, 2, 63, 1),
    Sketcher.Constraint("Tangent", 63, 2, 64, 1),
    Sketcher.Constraint("Tangent", 64, 2, 65, 1),
    Sketcher.Constraint("Tangent", 65, 2, 58, 1),
    Sketcher.Constraint("Tangent", 66, 2, 67, 1),
    Sketcher.Constraint("Tangent", 67, 2, 68, 1),
    Sketcher.Constraint("Tangent", 68, 2, 69, 1),
    Sketcher.Constraint("Tangent", 69, 2, 70, 1),
    Sketcher.Constraint("Tangent", 70, 2, 71, 1),
    Sketcher.Constraint("Tangent", 71, 2, 72, 1),
    Sketcher.Constraint("Tangent", 72, 2, 73, 1),
    Sketcher.Constraint("Tangent", 73, 2, 66, 1),
    Sketcher.Constraint("Tangent", 74, 2, 75, 1),
    Sketcher.Constraint("Tangent", 75, 2, 76, 1),
    Sketcher.Constraint("Tangent", 76, 2, 77, 1),
    Sketcher.Constraint("Tangent", 77, 2, 78, 1),
    Sketcher.Constraint("Tangent", 78, 2, 79, 1),
    Sketcher.Constraint("Tangent", 79, 2, 80, 1),
    Sketcher.Constraint("Tangent", 80, 2, 81, 1),
    Sketcher.Constraint("Tangent", 81, 2, 74, 1),
    Sketcher.Constraint("Tangent", 82, 2, 83, 1),
    Sketcher.Constraint("Tangent", 83, 2, 84, 1),
    Sketcher.Constraint("Tangent", 84, 2, 85, 1),
    Sketcher.Constraint("Tangent", 85, 2, 86, 1),
    Sketcher.Constraint("Tangent", 86, 2, 87, 1),
    Sketcher.Constraint("Tangent", 87, 2, 88, 1),
    Sketcher.Constraint("Tangent", 88, 2, 89, 1),
    Sketcher.Constraint("Tangent", 89, 2, 82, 1),
    Sketcher.Constraint("Horizontal", 32),
    Sketcher.Constraint("Horizontal", 48),
    Sketcher.Constraint("Horizontal", 51),
    Sketcher.Constraint("Horizontal", 55),
    Sketcher.Constraint("Horizontal", 58),
    Sketcher.Constraint("Horizontal", 62),
    Sketcher.Constraint("Horizontal", 69),
    Sketcher.Constraint("Horizontal", 73),
    Sketcher.Constraint("Horizontal", 76),
    Sketcher.Constraint("Equal", 0, 2),
    Sketcher.Constraint("Equal", 2, 4),
    Sketcher.Constraint("Equal", 4, 6),
    Sketcher.Constraint("Equal", 6, 9),
    Sketcher.Constraint("Equal", 6, 13),
    Sketcher.Constraint("Equal", 13, 15),
    Sketcher.Constraint("Equal", 15, 16),
    Sketcher.Constraint("Equal", 15, 18),
    Sketcher.Constraint("Equal", 16, 20),
    Sketcher.Constraint("Equal", 18, 22),
    Sketcher.Constraint("Equal", 22, 25),
    Sketcher.Constraint("Equal", 25, 27),
    Sketcher.Constraint("Equal", 20, 29),
    Sketcher.Constraint("Equal", 25, 31),
    Sketcher.Constraint("Equal", 31, 35),
    Sketcher.Constraint("Equal", 33, 39),
    Sketcher.Constraint("Equal", 39, 41),
    Sketcher.Constraint("Equal", 35, 43),
    Sketcher.Constraint("Equal", 35, 45),
    Sketcher.Constraint("Equal", 45, 47),
    Sketcher.Constraint("Equal", 47, 49),
    Sketcher.Constraint("Equal", 49, 50),
    Sketcher.Constraint("Equal", 50, 52),
    Sketcher.Constraint("Equal", 52, 54),
    Sketcher.Constraint("Equal", 54, 56),
    Sketcher.Constraint("Equal", 56, 59),
    Sketcher.Constraint("Equal", 59, 61),
    Sketcher.Constraint("Equal", 61, 63),
    Sketcher.Constraint("Equal", 63, 65),
    Sketcher.Constraint("Equal", 65, 66),
    Sketcher.Constraint("Equal", 66, 68),
    Sketcher.Constraint("Equal", 68, 70),
    Sketcher.Constraint("Equal", 70, 72),
    Sketcher.Constraint("Equal", 72, 75),
    Sketcher.Constraint("Equal", 75, 77),
    Sketcher.Constraint("Equal", 77, 79),
    Sketcher.Constraint("Equal", 77, 81),
    Sketcher.Constraint("Equal", 79, 82),
    Sketcher.Constraint("Equal", 82, 84),
    Sketcher.Constraint("Equal", 84, 86),
    Sketcher.Constraint("Equal", 86, 88),
    Sketcher.Constraint("Symmetric", 18, 3, 22, 3, -2),
    Sketcher.Constraint("Symmetric", 15, 3, 25, 3, -2),
    Sketcher.Constraint("Symmetric", 13, 3, 27, 3, -2),
    Sketcher.Constraint("Symmetric", 11, 3, 29, 3, -2),
    Sketcher.Constraint("Symmetric", 9, 3, 31, 3, -2),
    Sketcher.Constraint("Symmetric", 54, 3, 66, 3, -2),
    Sketcher.Constraint("Symmetric", 52, 3, 68, 3, -2),
    Sketcher.Constraint("Symmetric", 49, 3, 75, 3, -2),
    Sketcher.Constraint("Symmetric", 45, 3, 79, 3, -2),
    Sketcher.Constraint("Symmetric", 43, 3, 81, 3, -2),
    Sketcher.Constraint("Symmetric", 0, 3, 82, 3, -2),
    Sketcher.Constraint("Symmetric", 6, 3, 84, 3, -2),
    Sketcher.Constraint("Symmetric", 4, 3, 86, 3, -2),
    Sketcher.Constraint("Symmetric", 2, 3, 88, 3, -2),
    Sketcher.Constraint("Symmetric", 36, 2, 37, 2, -2),
    Sketcher.Constraint("Symmetric", 33, 2, 40, 2, -2),
    Sketcher.Constraint("Symmetric", 60, 2, 63, 2, -2),
    Sketcher.Constraint("Symmetric", 57, 2, 70, 2, -2),
    Sketcher.Constraint("PointOnObject", 16, 3, -2),
    Sketcher.Constraint("PointOnObject", 20, 3, -2),
    Sketcher.Constraint("Parallel", 1, 5),
    Sketcher.Constraint("Parallel", 3, 7),
    Sketcher.Constraint("Parallel", 7, 8),
    Sketcher.Constraint("Parallel", 8, 12),
    Sketcher.Constraint("Parallel", 5, 14),
    Sketcher.Constraint("Parallel", 12, 17),
    Sketcher.Constraint("Parallel", 10, 19),
    Sketcher.Constraint("Parallel", 17, 21),
    Sketcher.Constraint("Parallel", 24, 28),
    Sketcher.Constraint("Parallel", 26, 34),
    Sketcher.Constraint("Parallel", 28, 36),
    Sketcher.Constraint("Parallel", 40, 42),
    Sketcher.Constraint("Parallel", 38, 44),
    Sketcher.Constraint("Parallel", 42, 46),
    Sketcher.Constraint("Parallel", 46, 53),
    Sketcher.Constraint("Parallel", 53, 57),
    Sketcher.Constraint("Parallel", 57, 60),
    Sketcher.Constraint("Parallel", 74, 78),
    Sketcher.Constraint("Horizontal", 56, 3, 59, 3),
    Sketcher.Constraint("Horizontal", 52, 3, 61, 3),
    Sketcher.Constraint("Horizontal", 41, 2, 47, 2),
    Sketcher.Constraint("Equal", 48, 51),
    Sketcher.Constraint("Equal", 1, 3),
    Sketcher.Constraint("Equal", 7, 10),
    Sketcher.Constraint("Equal", 10, 14),
    Sketcher.Constraint("Equal", 14, 17),
    Sketcher.Constraint("Equal", 34, 36),
    Sketcher.Constraint("Equal", 24, 42),
    Sketcher.Constraint("Equal", 30, 44),
    Sketcher.Constraint("Equal", 28, 46),
    Sketcher.Constraint("Equal", 44, 53),
    Sketcher.Constraint("Radius", 0, 1.200001),
    Sketcher.Constraint("Radius", 33, 1.499999),
    Sketcher.Constraint("Radius", 37, 1.500003),
    Sketcher.Constraint("DistanceX", 58, 2, 58, 1, 6.03624),
    Sketcher.Constraint("DistanceX", 62, 1, 62, 2, 1.42238),
    Sketcher.Constraint("DistanceX", 0, 3, -1, 1, 13.2198),
    Sketcher.Constraint("DistanceY", -1, 1, 20, 3, 22.676199),
    Sketcher.Constraint("Distance", 8, 6.036239),
    Sketcher.Constraint("Distance", 34, 9.00249),
    Sketcher.Constraint("DistanceY", -1, 1, 4, 3, 7.007332),
    Sketcher.Constraint("DistanceX", 11, 3, -1, 1, 10.207809),
    Sketcher.Constraint("DistanceY", -1, 1, 11, 3, 15.25979),
    Sketcher.Constraint("DistanceY", -1, 1, 35, 3, 2.423739),
    Sketcher.Constraint("DistanceX", 43, 3, -1, 1, 11.627691),
    Sketcher.Constraint("DistanceY", 54, 3, -1, 1, 11.245432),
    Sketcher.Constraint("DistanceX", 50, 3, -1, 1, 13.328738),
])
pad1 = body.newObject("PartDesign::Pad", "Pad")
pad1.Profile = sketch1
pad1.Length = 1

doc.recompute()
